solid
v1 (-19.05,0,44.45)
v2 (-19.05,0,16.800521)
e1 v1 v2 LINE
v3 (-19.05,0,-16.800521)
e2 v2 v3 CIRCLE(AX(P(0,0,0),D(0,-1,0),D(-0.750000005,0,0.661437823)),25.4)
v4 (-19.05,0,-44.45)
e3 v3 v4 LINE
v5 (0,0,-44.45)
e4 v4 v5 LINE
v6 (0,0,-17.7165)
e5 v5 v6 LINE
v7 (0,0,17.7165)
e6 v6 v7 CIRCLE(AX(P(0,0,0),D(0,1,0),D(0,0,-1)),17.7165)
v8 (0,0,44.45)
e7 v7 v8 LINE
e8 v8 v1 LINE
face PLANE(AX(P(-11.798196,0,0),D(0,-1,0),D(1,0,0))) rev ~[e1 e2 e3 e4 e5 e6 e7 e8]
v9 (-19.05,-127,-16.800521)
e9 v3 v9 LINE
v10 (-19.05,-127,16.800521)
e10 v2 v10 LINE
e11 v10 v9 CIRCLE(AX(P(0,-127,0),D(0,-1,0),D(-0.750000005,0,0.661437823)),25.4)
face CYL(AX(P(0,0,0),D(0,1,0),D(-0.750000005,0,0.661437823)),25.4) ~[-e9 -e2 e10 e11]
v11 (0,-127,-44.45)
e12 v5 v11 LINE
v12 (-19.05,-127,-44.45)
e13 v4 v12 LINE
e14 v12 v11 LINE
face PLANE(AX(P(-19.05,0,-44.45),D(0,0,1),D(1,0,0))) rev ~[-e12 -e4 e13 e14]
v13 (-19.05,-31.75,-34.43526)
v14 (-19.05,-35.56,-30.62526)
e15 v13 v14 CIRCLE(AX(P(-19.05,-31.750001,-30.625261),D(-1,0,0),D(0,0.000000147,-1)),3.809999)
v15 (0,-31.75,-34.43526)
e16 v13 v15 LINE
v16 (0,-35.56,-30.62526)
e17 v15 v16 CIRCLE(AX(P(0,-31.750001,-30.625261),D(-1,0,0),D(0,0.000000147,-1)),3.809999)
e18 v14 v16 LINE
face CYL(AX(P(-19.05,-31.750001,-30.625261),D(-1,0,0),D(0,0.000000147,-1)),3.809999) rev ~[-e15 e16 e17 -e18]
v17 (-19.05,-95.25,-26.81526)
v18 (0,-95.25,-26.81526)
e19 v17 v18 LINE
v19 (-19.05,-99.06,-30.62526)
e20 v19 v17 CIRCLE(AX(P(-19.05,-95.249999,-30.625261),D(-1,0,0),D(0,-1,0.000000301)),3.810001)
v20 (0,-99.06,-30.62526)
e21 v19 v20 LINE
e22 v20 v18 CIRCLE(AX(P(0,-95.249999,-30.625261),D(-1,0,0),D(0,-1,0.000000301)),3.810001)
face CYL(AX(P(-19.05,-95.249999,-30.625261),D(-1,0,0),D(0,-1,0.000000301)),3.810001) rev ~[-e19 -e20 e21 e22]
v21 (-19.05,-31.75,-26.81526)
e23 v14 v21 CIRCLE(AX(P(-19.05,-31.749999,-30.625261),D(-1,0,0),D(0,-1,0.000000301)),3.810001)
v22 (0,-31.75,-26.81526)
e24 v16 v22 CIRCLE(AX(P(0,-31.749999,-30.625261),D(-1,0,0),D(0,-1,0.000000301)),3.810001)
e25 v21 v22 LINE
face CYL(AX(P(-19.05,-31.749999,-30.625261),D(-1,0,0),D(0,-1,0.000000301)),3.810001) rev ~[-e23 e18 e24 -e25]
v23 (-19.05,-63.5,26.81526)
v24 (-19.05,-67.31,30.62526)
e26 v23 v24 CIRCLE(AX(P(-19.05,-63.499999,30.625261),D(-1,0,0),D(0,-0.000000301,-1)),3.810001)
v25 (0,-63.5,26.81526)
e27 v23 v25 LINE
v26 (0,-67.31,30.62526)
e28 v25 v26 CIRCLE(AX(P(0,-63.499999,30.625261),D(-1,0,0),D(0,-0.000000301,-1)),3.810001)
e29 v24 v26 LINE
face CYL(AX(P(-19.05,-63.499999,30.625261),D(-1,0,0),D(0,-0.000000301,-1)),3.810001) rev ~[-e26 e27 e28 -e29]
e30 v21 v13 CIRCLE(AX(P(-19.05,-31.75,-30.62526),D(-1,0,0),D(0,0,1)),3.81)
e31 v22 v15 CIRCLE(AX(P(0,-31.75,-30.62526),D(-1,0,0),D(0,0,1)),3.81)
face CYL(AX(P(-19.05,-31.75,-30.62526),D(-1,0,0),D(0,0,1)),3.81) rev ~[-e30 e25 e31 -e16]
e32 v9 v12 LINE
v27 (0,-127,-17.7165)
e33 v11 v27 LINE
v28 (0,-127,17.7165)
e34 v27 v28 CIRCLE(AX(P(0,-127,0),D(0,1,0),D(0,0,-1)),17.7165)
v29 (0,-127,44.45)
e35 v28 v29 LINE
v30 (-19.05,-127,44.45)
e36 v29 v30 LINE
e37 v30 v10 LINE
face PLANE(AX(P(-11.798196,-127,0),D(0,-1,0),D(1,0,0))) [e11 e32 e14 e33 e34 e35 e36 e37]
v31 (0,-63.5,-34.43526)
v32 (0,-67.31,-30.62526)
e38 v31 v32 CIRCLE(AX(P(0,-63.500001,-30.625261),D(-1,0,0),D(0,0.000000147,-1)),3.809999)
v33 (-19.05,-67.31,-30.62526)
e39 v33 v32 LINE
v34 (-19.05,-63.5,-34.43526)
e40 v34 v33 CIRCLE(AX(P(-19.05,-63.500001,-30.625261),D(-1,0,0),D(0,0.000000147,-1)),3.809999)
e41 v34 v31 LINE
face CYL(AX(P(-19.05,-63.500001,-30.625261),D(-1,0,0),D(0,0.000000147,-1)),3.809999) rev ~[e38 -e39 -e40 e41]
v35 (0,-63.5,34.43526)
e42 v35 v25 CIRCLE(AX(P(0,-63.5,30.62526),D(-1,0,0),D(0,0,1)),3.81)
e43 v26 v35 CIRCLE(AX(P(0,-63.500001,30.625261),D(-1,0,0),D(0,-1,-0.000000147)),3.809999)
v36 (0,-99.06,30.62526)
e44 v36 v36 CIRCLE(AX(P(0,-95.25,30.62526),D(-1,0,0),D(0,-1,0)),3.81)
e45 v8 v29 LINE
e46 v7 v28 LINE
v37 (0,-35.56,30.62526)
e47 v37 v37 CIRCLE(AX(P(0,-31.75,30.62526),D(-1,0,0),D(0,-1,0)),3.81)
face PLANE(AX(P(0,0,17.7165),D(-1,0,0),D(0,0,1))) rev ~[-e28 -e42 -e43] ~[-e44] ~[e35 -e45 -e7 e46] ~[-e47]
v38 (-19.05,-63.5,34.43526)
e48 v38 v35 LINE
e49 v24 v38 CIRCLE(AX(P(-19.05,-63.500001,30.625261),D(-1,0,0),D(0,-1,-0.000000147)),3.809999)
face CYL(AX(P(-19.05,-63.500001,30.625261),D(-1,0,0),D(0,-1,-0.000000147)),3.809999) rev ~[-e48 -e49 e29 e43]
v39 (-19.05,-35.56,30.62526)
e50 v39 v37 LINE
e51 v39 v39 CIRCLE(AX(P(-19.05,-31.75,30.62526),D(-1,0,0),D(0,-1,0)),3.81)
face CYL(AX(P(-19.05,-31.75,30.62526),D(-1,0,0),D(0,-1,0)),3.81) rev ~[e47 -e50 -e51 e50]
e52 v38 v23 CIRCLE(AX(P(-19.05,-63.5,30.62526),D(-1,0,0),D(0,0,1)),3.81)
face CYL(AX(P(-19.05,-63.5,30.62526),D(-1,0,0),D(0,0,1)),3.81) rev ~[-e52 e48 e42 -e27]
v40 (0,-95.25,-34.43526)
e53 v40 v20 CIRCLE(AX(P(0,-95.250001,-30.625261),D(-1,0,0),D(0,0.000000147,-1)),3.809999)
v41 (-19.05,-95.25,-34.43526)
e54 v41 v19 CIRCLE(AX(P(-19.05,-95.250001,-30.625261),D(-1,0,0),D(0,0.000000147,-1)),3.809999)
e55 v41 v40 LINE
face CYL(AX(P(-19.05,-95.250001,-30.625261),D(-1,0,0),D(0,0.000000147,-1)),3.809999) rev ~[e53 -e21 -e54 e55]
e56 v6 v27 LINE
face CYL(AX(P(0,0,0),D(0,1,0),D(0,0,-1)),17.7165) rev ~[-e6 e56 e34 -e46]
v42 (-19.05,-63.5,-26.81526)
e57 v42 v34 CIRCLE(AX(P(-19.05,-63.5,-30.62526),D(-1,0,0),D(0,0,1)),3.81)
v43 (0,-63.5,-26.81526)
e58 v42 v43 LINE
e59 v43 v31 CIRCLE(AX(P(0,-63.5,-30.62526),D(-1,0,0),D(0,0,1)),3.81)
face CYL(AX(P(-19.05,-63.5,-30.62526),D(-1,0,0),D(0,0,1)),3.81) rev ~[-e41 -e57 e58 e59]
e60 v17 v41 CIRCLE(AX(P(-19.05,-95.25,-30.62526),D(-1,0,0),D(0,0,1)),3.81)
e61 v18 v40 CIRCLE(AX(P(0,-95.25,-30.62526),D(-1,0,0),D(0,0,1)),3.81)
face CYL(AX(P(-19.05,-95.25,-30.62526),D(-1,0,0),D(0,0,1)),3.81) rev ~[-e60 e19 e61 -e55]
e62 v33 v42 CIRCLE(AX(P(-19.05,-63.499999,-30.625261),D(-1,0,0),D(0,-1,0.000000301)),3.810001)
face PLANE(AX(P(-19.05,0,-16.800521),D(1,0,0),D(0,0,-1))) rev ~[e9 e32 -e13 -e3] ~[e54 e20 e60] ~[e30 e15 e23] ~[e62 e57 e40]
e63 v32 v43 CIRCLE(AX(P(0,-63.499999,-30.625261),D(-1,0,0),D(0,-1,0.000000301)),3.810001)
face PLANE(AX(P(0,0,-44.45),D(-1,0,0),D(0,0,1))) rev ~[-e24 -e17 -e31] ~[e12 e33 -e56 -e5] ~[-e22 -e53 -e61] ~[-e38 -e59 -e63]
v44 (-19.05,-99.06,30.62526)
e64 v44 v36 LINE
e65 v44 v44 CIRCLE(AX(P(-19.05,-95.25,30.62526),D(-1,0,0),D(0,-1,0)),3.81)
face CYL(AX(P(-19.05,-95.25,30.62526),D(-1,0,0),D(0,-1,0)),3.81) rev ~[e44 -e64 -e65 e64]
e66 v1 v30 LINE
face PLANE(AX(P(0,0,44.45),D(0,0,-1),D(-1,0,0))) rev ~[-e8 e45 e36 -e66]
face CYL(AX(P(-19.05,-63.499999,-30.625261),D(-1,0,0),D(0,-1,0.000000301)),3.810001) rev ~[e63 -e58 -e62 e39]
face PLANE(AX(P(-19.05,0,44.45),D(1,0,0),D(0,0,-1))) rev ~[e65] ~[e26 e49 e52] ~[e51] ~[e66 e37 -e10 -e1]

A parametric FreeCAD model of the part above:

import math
import FreeCAD as App
import Part
import Sketcher
Q = App.Units.Quantity

doc = App.newDocument("Part")
body = doc.addObject("PartDesign::Body", "Body")

# Sketch on XZ plane
sketch1 = doc.addObject("Sketcher::SketchObject", "Sketch")
body.addObject(sketch1)
sketch1.AttachmentSupport = (doc.XZ_Plane, [""])
sketch1.MapMode = "FlatFace"
sketch1.addGeometry([
    Part.LineSegment(App.Vector(-19, 44, 0), App.Vector(-19, 17, 0)),  # 0
    Part.ArcOfCircle(Part.Circle(App.Vector(0, 0, 0), App.Vector(0, 0, 1), 25), math.radians(139), math.radians(221)),  # 1
    Part.LineSegment(App.Vector(-19, -17, 0), App.Vector(-19, -44, 0)),  # 2
    Part.LineSegment(App.Vector(-19, -44, 0), App.Vector(0, -44, 0)),  # 3
    Part.LineSegment(App.Vector(0, -44, 0), App.Vector(0, -18, 0)),  # 4
    Part.ArcOfCircle(Part.Circle(App.Vector(0, 0, 0), App.Vector(0, 0, 1), 18), math.radians(90), math.radians(270)),  # 5
    Part.LineSegment(App.Vector(0, 18, 0), App.Vector(0, 44, 0)),  # 6
    Part.LineSegment(App.Vector(0, 44, 0), App.Vector(-19, 44, 0)),  # 7
], False)
sketch1.addConstraint([
    Sketcher.Constraint("Coincident", 0, 2, 1, 1),
    Sketcher.Constraint("Coincident", 1, 2, 2, 1),
    Sketcher.Constraint("Coincident", 2, 2, 3, 1),
    Sketcher.Constraint("Coincident", 3, 2, 4, 1),
    Sketcher.Constraint("Coincident", 4, 2, 5, 2),
    Sketcher.Constraint("Coincident", 5, 1, 6, 1),
    Sketcher.Constraint("Coincident", 6, 2, 7, 1),
    Sketcher.Constraint("Coincident", 7, 2, 0, 1),
    Sketcher.Constraint("Vertical", 0),
    Sketcher.Constraint("Vertical", 2),
    Sketcher.Constraint("Horizontal", 3),
    Sketcher.Constraint("Vertical", 4),
    Sketcher.Constraint("Vertical", 6),
    Sketcher.Constraint("Horizontal", 7),
    Sketcher.Constraint("Coincident", 1, 3, -1, 1),
    Sketcher.Constraint("Coincident", 5, 3, -1, 1),
    Sketcher.Constraint("Symmetric", 3, 2, 6, 2, -1, 1),
    Sketcher.Constraint("PointOnObject", 3, 2, -2),
    Sketcher.Constraint("Vertical", 0, 2, 1, 2),
    Sketcher.Constraint("Radius", 1, Q("1 in")),
    Sketcher.Constraint("DistanceX", 3, 1, 3, 2, Q("0.75 in")),
    Sketcher.Constraint("Radius", 5, Q("0.6975 in")),
    Sketcher.Constraint("DistanceY", 2, 2, -1, 1, Q("1.75 in")),
])
pad1 = doc.addObject("PartDesign::Pad", "Pad")
body.addObject(pad1)
pad1.Profile = sketch1
pad1.Length = Q("5 in")

# Sketch on YZ plane
sketch2 = doc.addObject("Sketcher::SketchObject", "Sketch001")
body.addObject(sketch2)
sketch2.AttachmentSupport = (doc.YZ_Plane, [""])
sketch2.MapMode = "FlatFace"
sketch2.AttachmentOffset = App.Placement(App.Vector(0, 0, -0.75 * 25.4), App.Rotation())
sketch2.addGeometry([
    Part.ArcOfCircle(Part.Circle(App.Vector(-63.5, -30.6, 0), App.Vector(0, 0, 1), 3.8), math.radians(90), math.radians(180)),  # 0
    Part.ArcOfCircle(Part.Circle(App.Vector(-63.5, -30.6, 0), App.Vector(0, 0, 1), 3.8), math.radians(-90), math.radians(90)),  # 1
    Part.ArcOfCircle(Part.Circle(App.Vector(-63.5, -30.6, 0), App.Vector(0, 0, 1), 3.8), math.radians(180), math.radians(270)),  # 2
    Part.ArcOfCircle(Part.Circle(App.Vector(-31.7, -30.6, 0), App.Vector(0, 0, 1), 3.8), math.radians(90), math.radians(180)),  # 3
    Part.ArcOfCircle(Part.Circle(App.Vector(-31.8, -30.6, 0), App.Vector(0, 0, 1), 3.8), math.radians(-90), math.radians(90)),  # 4
    Part.ArcOfCircle(Part.Circle(App.Vector(-31.8, -30.6, 0), App.Vector(0, 0, 1), 3.8), math.radians(180), math.radians(270)),  # 5
    Part.ArcOfCircle(Part.Circle(App.Vector(-95.3, -30.6, 0), App.Vector(0, 0, 1), 3.8), math.radians(180), math.radians(270)),  # 6
    Part.ArcOfCircle(Part.Circle(App.Vector(-95.2, -30.6, 0), App.Vector(0, 0, 1), 3.8), math.radians(90), math.radians(180)),  # 7
    Part.ArcOfCircle(Part.Circle(App.Vector(-95.2, -30.6, 0), App.Vector(0, 0, 1), 3.8), math.radians(-90), math.radians(90)),  # 8
], False)
sketch2.addConstraint([
    Sketcher.Constraint("Tangent", 0, 1, 1, 2),
    Sketcher.Constraint("Tangent", 1, 1, 2, 2),
    Sketcher.Constraint("Tangent", 2, 1, 0, 2),
    Sketcher.Constraint("Tangent", 3, 1, 4, 2),
    Sketcher.Constraint("Tangent", 4, 1, 5, 2),
    Sketcher.Constraint("Tangent", 5, 1, 3, 2),
    Sketcher.Constraint("Tangent", 6, 1, 7, 2),
    Sketcher.Constraint("Tangent", 7, 1, 8, 2),
    Sketcher.Constraint("Tangent", 8, 1, 6, 2),
    Sketcher.Constraint("Equal", 2, 3),
    Sketcher.Constraint("Equal", 5, 6),
    Sketcher.Constraint("Horizontal", 2, 3, 3, 3),
    Sketcher.Constraint("Horizontal", 5, 3, 6, 3),
    Sketcher.Constraint("Horizontal", 8, 3, 2, 1),
    Sketcher.Constraint("Horizontal", 2, 1, 5, 1),
    Sketcher.Constraint("Horizontal", 5, 1, 6, 1),
    Sketcher.Constraint("Vertical", 2, 3, 0, 1),
    Sketcher.Constraint("Vertical", 0, 1, 1, 1),
    Sketcher.Constraint("Vertical", 5, 3, 3, 1),
    Sketcher.Constraint("Vertical", 3, 1, 4, 1),
    Sketcher.Constraint("Vertical", 8, 3, 7, 1),
    Sketcher.Constraint("Vertical", 7, 1, 8, 1),
    Sketcher.Constraint("Radius", 0, Q("0.15 in")),
    Sketcher.Constraint("DistanceX", 0, 3, -1, 1, Q("2.5 in")),
    Sketcher.Constraint("DistanceX", 5, 1, -1, 1, Q("1.4 in")),
    Sketcher.Constraint("DistanceX", 6, 1, -1, 1, Q("3.9 in")),
    Sketcher.Constraint("DistanceY", 0, 3, -1, 1, Q("30.625261 mm")),
])
pocket1 = doc.addObject("PartDesign::Pocket", "Pocket")
body.addObject(pocket1)
pocket1.Profile = sketch2
pocket1.Length = Q("1 in")
pocket1.Reversed = True

# Sketch on YZ plane
sketch3 = doc.addObject("Sketcher::SketchObject", "Sketch002")
body.addObject(sketch3)
sketch3.AttachmentSupport = (doc.YZ_Plane, [""])
sketch3.MapMode = "FlatFace"
sketch3.AttachmentOffset = App.Placement(App.Vector(0, 0, -0.75 * 25.4), App.Rotation())
sketch3.addGeometry([
    Part.ArcOfCircle(Part.Circle(App.Vector(-63.5, 30.6, 0), App.Vector(0, 0, 1), 3.8), math.radians(-180), math.radians(-90)),  # 0
    Part.ArcOfCircle(Part.Circle(App.Vector(-63.5, 30.6, 0), App.Vector(0, 0, 1), 3.8), math.radians(90), math.radians(180)),  # 1
    Part.ArcOfCircle(Part.Circle(App.Vector(-63.5, 30.6, 0), App.Vector(0, 0, 1), 3.8), math.radians(-90), math.radians(90)),  # 2
    Part.Circle(App.Vector(-31.8, 30.6, 0), App.Vector(0, 0, 1), 3.8),  # 3
    Part.Circle(App.Vector(-95.2, 30.6, 0), App.Vector(0, 0, 1), 3.8),  # 4
], False)
sketch3.addConstraint([
    Sketcher.Constraint("Tangent", 0, 1, 1, 2),
    Sketcher.Constraint("Tangent", 1, 1, 2, 2),
    Sketcher.Constraint("Tangent", 2, 1, 0, 2),
    Sketcher.Constraint("Equal", 2, 3),
    Sketcher.Constraint("Equal", 3, 4),
    Sketcher.Constraint("Horizontal", 2, 3, 3, 3),
    Sketcher.Constraint("Horizontal", 3, 3, 4, 3),
    Sketcher.Constraint("Horizontal", 4, 3, 0, 1),
    Sketcher.Constraint("Vertical", 2, 3, 1, 1),
    Sketcher.Constraint("Vertical", 1, 1, 2, 1),
    Sketcher.Constraint("Diameter", 3, Q("0.3 in")),
    Sketcher.Constraint("DistanceX", 0, 3, -1, 1, Q("2.5 in")),
    Sketcher.Constraint("DistanceX", 4, 3, 3, 3, Q("2.5 in")),
    Sketcher.Constraint("DistanceX", 4, 3, 0, 1, Q("1.1 in")),
    Sketcher.Constraint("DistanceY", -1, 1, 0, 3, Q("30.625261 mm")),
])
pocket2 = doc.addObject("PartDesign::Pocket", "Pocket001")
body.addObject(pocket2)
pocket2.Profile = sketch3
pocket2.Length = Q("1 in")
pocket2.Reversed = True

doc.recompute()
